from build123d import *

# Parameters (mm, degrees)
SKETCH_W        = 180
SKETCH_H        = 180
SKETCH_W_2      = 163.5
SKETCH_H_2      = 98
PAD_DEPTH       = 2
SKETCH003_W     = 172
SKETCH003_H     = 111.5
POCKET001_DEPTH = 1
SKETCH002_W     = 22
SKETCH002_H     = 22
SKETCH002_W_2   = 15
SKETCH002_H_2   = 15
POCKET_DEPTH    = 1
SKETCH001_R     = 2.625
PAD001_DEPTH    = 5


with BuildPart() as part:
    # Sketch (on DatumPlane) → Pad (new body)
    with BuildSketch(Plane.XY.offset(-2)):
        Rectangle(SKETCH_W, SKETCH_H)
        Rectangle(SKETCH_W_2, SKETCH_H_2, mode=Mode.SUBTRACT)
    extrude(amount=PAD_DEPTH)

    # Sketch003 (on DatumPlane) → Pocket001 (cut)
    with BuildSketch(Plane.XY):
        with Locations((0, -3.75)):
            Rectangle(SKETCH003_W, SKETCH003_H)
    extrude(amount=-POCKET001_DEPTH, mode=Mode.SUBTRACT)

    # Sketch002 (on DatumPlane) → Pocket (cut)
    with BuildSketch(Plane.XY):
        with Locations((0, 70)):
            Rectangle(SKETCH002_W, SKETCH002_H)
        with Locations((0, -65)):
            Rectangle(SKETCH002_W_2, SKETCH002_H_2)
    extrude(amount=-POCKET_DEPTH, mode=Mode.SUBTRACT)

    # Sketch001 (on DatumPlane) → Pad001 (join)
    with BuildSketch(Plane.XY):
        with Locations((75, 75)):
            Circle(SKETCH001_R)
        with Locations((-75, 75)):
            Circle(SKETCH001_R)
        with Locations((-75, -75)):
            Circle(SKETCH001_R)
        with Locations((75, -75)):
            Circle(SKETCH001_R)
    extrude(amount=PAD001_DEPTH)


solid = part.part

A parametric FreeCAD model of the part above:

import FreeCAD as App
import Part
import Sketcher
from FreeCAD import Vector


def add_polygon(sketch, points):
    """Adds a closed chain of lines whose ends are joined by coincident constraints."""
    first, n = sketch.GeometryCount, len(points)
    for a, b in zip(points, points[1:] + points[:1]):
        sketch.addGeometry(Part.LineSegment(App.Vector(*a, 0), App.Vector(*b, 0)), False)
    for i in range(n):
        sketch.addConstraint(Sketcher.Constraint("Coincident", first + i, 2, first + (i + 1) % n, 1))

doc = App.newDocument("Part")
body = doc.addObject("PartDesign::Body", "Body")

sketch1 = body.newObject("Sketcher::SketchObject", "Sketch")
sketch1.AttachmentSupport = (doc.getObject("XY_Plane"), [""])
sketch1.MapMode = "FlatFace"
sketch1.AttachmentOffset = App.Placement(Vector(0, 0, -2), App.Rotation())
add_polygon(sketch1, [(-90, 90), (-90, -90), (90, -90), (90, 90)])
add_polygon(sketch1, [(81.75, -49), (-81.75, -49), (-81.75, 49), (81.75, 49)])
sketch1.addConstraint([
    Sketcher.Constraint("Vertical", 0),
    Sketcher.Constraint("Horizontal", 1),
    Sketcher.Constraint("Vertical", 2),
    Sketcher.Constraint("Horizontal", 3),
    Sketcher.Constraint("Horizontal", 4),
    Sketcher.Constraint("Vertical", 5),
    Sketcher.Constraint("Horizontal", 6),
    Sketcher.Constraint("Vertical", 7),
    Sketcher.Constraint("Symmetric", 0, 2, 2, 2, -1, 1),
    Sketcher.Constraint("Symmetric", 4, 2, 6, 2, -1, 1),
    Sketcher.Constraint("Equal", 3, 0),
    Sketcher.Constraint("DistanceX", 1, 1, 1, 2, 180.0),
    Sketcher.Constraint("DistanceY", 5, 1, 5, 2, 98.0),
    Sketcher.Constraint("DistanceX", 4, 2, 4, 1, 163.5),
])
pad1 = body.newObject("PartDesign::Pad", "Pad")
pad1.Profile = sketch1
pad1.Length = 2

sketch2 = body.newObject("Sketcher::SketchObject", "Sketch001")
sketch2.AttachmentSupport = (doc.getObject("XY_Plane"), [""])
sketch2.MapMode = "FlatFace"
add_polygon(sketch2, [(-86, 52), (-86, -59.5), (86, -59.5), (86, 52)])
sketch2.addConstraint([
    Sketcher.Constraint("Vertical", 0),
    Sketcher.Constraint("Horizontal", 1),
    Sketcher.Constraint("Vertical", 2),
    Sketcher.Constraint("Horizontal", 3),
    Sketcher.Constraint("DistanceX", 1, 1, 1, 2, 172.0),
    Sketcher.Constraint("DistanceY", 0, 2, 0, 1, 111.5),
    Sketcher.Constraint("DistanceX", 0, 2, -1, 1, 86.0),
    Sketcher.Constraint("DistanceY", -1, 1, 2, 2, 52.0),
])
pocket1 = body.newObject("PartDesign::Pocket", "Pocket")
pocket1.Profile = sketch2
pocket1.Length = 1

sketch3 = body.newObject("Sketcher::SketchObject", "Sketch002")
sketch3.AttachmentSupport = (doc.getObject("XY_Plane"), [""])
sketch3.MapMode = "FlatFace"
add_polygon(sketch3, [(-11, 81), (-11, 59), (11, 59), (11, 81)])
add_polygon(sketch3, [(-7.5, -57.5), (-7.5, -72.5), (7.5, -72.5), (7.5, -57.5)])
sketch3.addConstraint([
    Sketcher.Constraint("Vertical", 0),
    Sketcher.Constraint("Horizontal", 1),
    Sketcher.Constraint("Vertical", 2),
    Sketcher.Constraint("Horizontal", 3),
    Sketcher.Constraint("Vertical", 4),
    Sketcher.Constraint("Horizontal", 5),
    Sketcher.Constraint("Vertical", 6),
    Sketcher.Constraint("Horizontal", 7),
    Sketcher.Constraint("Equal", 3, 0),
    Sketcher.Constraint("Equal", 7, 4),
    Sketcher.Constraint("DistanceX", 1, 1, 1, 2, 22.0),
    Sketcher.Constraint("DistanceX", 5, 1, 5, 2, 15.0),
    Sketcher.Constraint("DistanceX", 0, 2, -1, 1, 11.0),
    Sketcher.Constraint("DistanceY", -1, 1, 0, 2, 59.0),
    Sketcher.Constraint("DistanceX", 4, 2, -1, 1, 7.5),
    Sketcher.Constraint("DistanceY", 4, 2, -1, 1, 72.5),
])
pocket2 = body.newObject("PartDesign::Pocket", "Pocket001")
pocket2.Profile = sketch3
pocket2.Length = 1

sketch4 = body.newObject("Sketcher::SketchObject", "Sketch003")
sketch4.AttachmentSupport = (doc.getObject("XY_Plane"), [""])
sketch4.MapMode = "FlatFace"
sketch4.addGeometry([
    Part.Circle(Vector(75, 75, 0), Vector(0, 0, 1), 2.625),
    Part.Circle(Vector(-75, 75, 0), Vector(0, 0, 1), 2.625),
    Part.Circle(Vector(-75, -75, 0), Vector(0, 0, 1), 2.625),
    Part.Circle(Vector(75, -75, 0), Vector(0, 0, 1), 2.625),
], False)
sketch4.addConstraint([
    Sketcher.Constraint("Equal", 0, 1),
    Sketcher.Constraint("Equal", 1, 2),
    Sketcher.Constraint("Equal", 2, 3),
    Sketcher.Constraint("Symmetric", 0, 3, 2, 3, -1, 1),
    Sketcher.Constraint("Symmetric", 1, 3, 3, 3, -1, 1),
    Sketcher.Constraint("Symmetric", 0, 3, 1, 3, -2),
    Sketcher.Constraint("Diameter", 0, 5.25),
    Sketcher.Constraint("DistanceX", -1, 1, 0, 3, 75.0),
    Sketcher.Constraint("DistanceY", -1, 1, 0, 3, 75.0),
])
pad2 = body.newObject("PartDesign::Pad", "Pad001")
pad2.Profile = sketch4
pad2.Length = 5

doc.recompute()
